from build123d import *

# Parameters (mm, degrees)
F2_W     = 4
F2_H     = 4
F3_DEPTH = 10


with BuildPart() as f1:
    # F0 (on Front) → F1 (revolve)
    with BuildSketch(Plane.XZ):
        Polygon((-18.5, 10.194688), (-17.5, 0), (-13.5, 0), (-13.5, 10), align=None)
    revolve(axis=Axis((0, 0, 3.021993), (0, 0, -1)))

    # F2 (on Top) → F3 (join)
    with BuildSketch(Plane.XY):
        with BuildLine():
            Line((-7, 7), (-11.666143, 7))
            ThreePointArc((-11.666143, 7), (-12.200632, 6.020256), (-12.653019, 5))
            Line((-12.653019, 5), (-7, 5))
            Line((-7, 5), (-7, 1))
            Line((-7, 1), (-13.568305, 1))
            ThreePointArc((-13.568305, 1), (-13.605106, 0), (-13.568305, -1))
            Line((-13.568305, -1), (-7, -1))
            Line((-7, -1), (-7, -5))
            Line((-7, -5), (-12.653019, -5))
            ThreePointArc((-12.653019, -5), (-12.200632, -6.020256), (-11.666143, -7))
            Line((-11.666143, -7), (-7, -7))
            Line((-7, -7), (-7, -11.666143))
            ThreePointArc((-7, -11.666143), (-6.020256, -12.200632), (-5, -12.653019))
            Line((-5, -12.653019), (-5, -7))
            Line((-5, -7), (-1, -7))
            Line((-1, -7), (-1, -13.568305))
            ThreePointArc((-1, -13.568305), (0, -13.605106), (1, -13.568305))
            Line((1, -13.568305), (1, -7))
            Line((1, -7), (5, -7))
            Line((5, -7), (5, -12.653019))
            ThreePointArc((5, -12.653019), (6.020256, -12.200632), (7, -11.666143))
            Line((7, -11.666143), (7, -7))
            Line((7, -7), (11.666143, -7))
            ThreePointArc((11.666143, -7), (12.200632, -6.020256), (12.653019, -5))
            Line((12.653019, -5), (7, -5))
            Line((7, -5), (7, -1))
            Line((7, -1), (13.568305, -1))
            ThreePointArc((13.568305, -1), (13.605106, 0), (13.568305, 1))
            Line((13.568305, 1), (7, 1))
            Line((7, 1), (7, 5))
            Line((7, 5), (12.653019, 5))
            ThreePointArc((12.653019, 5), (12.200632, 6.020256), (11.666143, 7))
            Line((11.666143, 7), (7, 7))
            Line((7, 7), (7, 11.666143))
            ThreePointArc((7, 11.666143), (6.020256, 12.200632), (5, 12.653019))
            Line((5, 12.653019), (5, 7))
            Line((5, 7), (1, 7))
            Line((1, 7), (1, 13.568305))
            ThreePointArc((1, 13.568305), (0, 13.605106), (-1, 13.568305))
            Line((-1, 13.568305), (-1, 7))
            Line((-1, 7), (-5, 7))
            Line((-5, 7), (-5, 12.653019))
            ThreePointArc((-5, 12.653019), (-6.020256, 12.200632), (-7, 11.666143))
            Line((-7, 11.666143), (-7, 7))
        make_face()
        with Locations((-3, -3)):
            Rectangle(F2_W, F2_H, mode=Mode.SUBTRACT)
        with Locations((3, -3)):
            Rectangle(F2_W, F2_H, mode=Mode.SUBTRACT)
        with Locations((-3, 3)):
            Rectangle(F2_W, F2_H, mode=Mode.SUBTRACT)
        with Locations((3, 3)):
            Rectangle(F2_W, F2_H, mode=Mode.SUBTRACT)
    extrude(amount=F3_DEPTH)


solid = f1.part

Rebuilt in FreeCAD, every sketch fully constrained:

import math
import FreeCAD as App
import Part
import Sketcher

doc = App.newDocument("Part")
body = doc.addObject("PartDesign::Body", "Body")

# Sketch on XZ plane
sketch1 = doc.addObject("Sketcher::SketchObject", "Sketch")
body.addObject(sketch1)
sketch1.AttachmentSupport = (doc.XZ_Plane, [""])
sketch1.MapMode = "FlatFace"
sketch1.addGeometry(Part.LineSegment(App.Vector(-18.5, 10.194688, 0), App.Vector(-17.5, 0, 0)), False)
sketch1.addGeometry(Part.LineSegment(App.Vector(-17.5, 0, 0), App.Vector(-13.5, 0, 0)), False)
sketch1.addGeometry(Part.LineSegment(App.Vector(-13.5, 0, 0), App.Vector(-13.5, 10, 0)), False)
sketch1.addGeometry(Part.LineSegment(App.Vector(-13.5, 10, 0), App.Vector(-18.5, 10.194688, 0)), False)
sketch1.addConstraint(Sketcher.Constraint("Coincident", 0, 2, 1, 1))
sketch1.addConstraint(Sketcher.Constraint("Coincident", 1, 2, 2, 1))
sketch1.addConstraint(Sketcher.Constraint("Coincident", 2, 2, 3, 1))
sketch1.addConstraint(Sketcher.Constraint("Coincident", 3, 2, 0, 1))
sketch1.addConstraint(Sketcher.Constraint("Horizontal", 1))
sketch1.addConstraint(Sketcher.Constraint("Vertical", 2))
sketch1.addConstraint(Sketcher.Constraint("PointOnObject", 0, 2, -1))
sketch1.addConstraint(Sketcher.Constraint("DistanceX", 1, 1, 1, 2, 4.0))
sketch1.addConstraint(Sketcher.Constraint("DistanceY", 2, 1, 2, 2, 10.0))
sketch1.addConstraint(Sketcher.Constraint("DistanceX", 3, 2, 2, 2, 5.0))
sketch1.addConstraint(Sketcher.Constraint("DistanceX", 0, 2, -1, 1, 17.5))
sketch1.addConstraint(Sketcher.Constraint("Distance", 3, 5.003789))
revolution = doc.addObject("PartDesign::Revolution", "Revolution")
body.addObject(revolution)
revolution.Profile = sketch1
revolution.ReferenceAxis = (sketch1, ["V_Axis"])
revolution.Angle = 360

# Sketch on XY plane
sketch2 = doc.addObject("Sketcher::SketchObject", "Sketch001")
body.addObject(sketch2)
sketch2.AttachmentSupport = (doc.XY_Plane, [""])
sketch2.MapMode = "FlatFace"
sketch2.addGeometry(Part.LineSegment(App.Vector(-7, 7, 0), App.Vector(-11.666143, 7, 0)), False)
sketch2.addGeometry(Part.ArcOfCircle(Part.Circle(App.Vector(-0.000121, 0.00006, 0), App.Vector(0, 0, 1), 13.604971), math.radians(149.035065), math.radians(158.43797)), False)
sketch2.addGeometry(Part.LineSegment(App.Vector(-12.653019, 5, 0), App.Vector(-7, 5, 0)), False)
sketch2.addGeometry(Part.LineSegment(App.Vector(-7, 5, 0), App.Vector(-7, 1, 0)), False)
sketch2.addGeometry(Part.LineSegment(App.Vector(-7, 1, 0), App.Vector(-13.568305, 1, 0)), False)
sketch2.addGeometry(Part.ArcOfCircle(Part.Circle(App.Vector(-0.000118, 0, 0), App.Vector(0, 0, 1), 13.604988), math.radians(175.784818), math.radians(184.215182)), False)
sketch2.addGeometry(Part.LineSegment(App.Vector(-13.568305, -1, 0), App.Vector(-7, -1, 0)), False)
sketch2.addGeometry(Part.LineSegment(App.Vector(-7, -1, 0), App.Vector(-7, -5, 0)), False)
sketch2.addGeometry(Part.LineSegment(App.Vector(-7, -5, 0), App.Vector(-12.653019, -5, 0)), False)
sketch2.addGeometry(Part.ArcOfCircle(Part.Circle(App.Vector(-0.000121, -0.00006, 0), App.Vector(0, 0, 1), 13.604971), math.radians(-158.43797), math.radians(-149.035065)), False)
sketch2.addGeometry(Part.LineSegment(App.Vector(-11.666143, -7, 0), App.Vector(-7, -7, 0)), False)
sketch2.addGeometry(Part.LineSegment(App.Vector(-7, -7, 0), App.Vector(-7, -11.666143, 0)), False)
sketch2.addGeometry(Part.ArcOfCircle(Part.Circle(App.Vector(-0.00006, -0.000121, 0), App.Vector(0, 0, 1), 13.604971), math.radians(-120.964935), math.radians(-111.56203)), False)
sketch2.addGeometry(Part.LineSegment(App.Vector(-5, -12.653019, 0), App.Vector(-5, -7, 0)), False)
sketch2.addGeometry(Part.LineSegment(App.Vector(-5, -7, 0), App.Vector(-1, -7, 0)), False)
sketch2.addGeometry(Part.LineSegment(App.Vector(-1, -7, 0), App.Vector(-1, -13.568305, 0)), False)
sketch2.addGeometry(Part.ArcOfCircle(Part.Circle(App.Vector(0, -0.000118, 0), App.Vector(0, 0, 1), 13.604988), math.radians(-94.215182), math.radians(-85.784818)), False)
sketch2.addGeometry(Part.LineSegment(App.Vector(1, -13.568305, 0), App.Vector(1, -7, 0)), False)
sketch2.addGeometry(Part.LineSegment(App.Vector(1, -7, 0), App.Vector(5, -7, 0)), False)
sketch2.addGeometry(Part.LineSegment(App.Vector(5, -7, 0), App.Vector(5, -12.653019, 0)), False)
sketch2.addGeometry(Part.ArcOfCircle(Part.Circle(App.Vector(0.00006, -0.000121, 0), App.Vector(0, 0, 1), 13.604971), math.radians(-68.43797), math.radians(-59.035065)), False)
sketch2.addGeometry(Part.LineSegment(App.Vector(7, -11.666143, 0), App.Vector(7, -7, 0)), False)
sketch2.addGeometry(Part.LineSegment(App.Vector(7, -7, 0), App.Vector(11.666143, -7, 0)), False)
sketch2.addGeometry(Part.ArcOfCircle(Part.Circle(App.Vector(0.000121, -0.00006, 0), App.Vector(0, 0, 1), 13.604971), math.radians(-30.964935), math.radians(-21.56203)), False)
sketch2.addGeometry(Part.LineSegment(App.Vector(12.653019, -5, 0), App.Vector(7, -5, 0)), False)
sketch2.addGeometry(Part.LineSegment(App.Vector(7, -5, 0), App.Vector(7, -1, 0)), False)
sketch2.addGeometry(Part.LineSegment(App.Vector(7, -1, 0), App.Vector(13.568305, -1, 0)), False)
sketch2.addGeometry(Part.ArcOfCircle(Part.Circle(App.Vector(0.000118, 0, 0), App.Vector(0, 0, 1), 13.604988), math.radians(-4.215182), math.radians(4.215182)), False)
sketch2.addGeometry(Part.LineSegment(App.Vector(13.568305, 1, 0), App.Vector(7, 1, 0)), False)
sketch2.addGeometry(Part.LineSegment(App.Vector(7, 1, 0), App.Vector(7, 5, 0)), False)
sketch2.addGeometry(Part.LineSegment(App.Vector(7, 5, 0), App.Vector(12.653019, 5, 0)), False)
sketch2.addGeometry(Part.ArcOfCircle(Part.Circle(App.Vector(0.000121, 0.00006, 0), App.Vector(0, 0, 1), 13.604971), math.radians(21.56203), math.radians(30.964935)), False)
sketch2.addGeometry(Part.LineSegment(App.Vector(11.666143, 7, 0), App.Vector(7, 7, 0)), False)
sketch2.addGeometry(Part.LineSegment(App.Vector(7, 7, 0), App.Vector(7, 11.666143, 0)), False)
sketch2.addGeometry(Part.ArcOfCircle(Part.Circle(App.Vector(0.00006, 0.000121, 0), App.Vector(0, 0, 1), 13.604971), math.radians(59.035065), math.radians(68.43797)), False)
sketch2.addGeometry(Part.LineSegment(App.Vector(5, 12.653019, 0), App.Vector(5, 7, 0)), False)
sketch2.addGeometry(Part.LineSegment(App.Vector(5, 7, 0), App.Vector(1, 7, 0)), False)
sketch2.addGeometry(Part.LineSegment(App.Vector(1, 7, 0), App.Vector(1, 13.568305, 0)), False)
sketch2.addGeometry(Part.ArcOfCircle(Part.Circle(App.Vector(0, 0.000118, 0), App.Vector(0, 0, 1), 13.604988), math.radians(85.784818), math.radians(94.215182)), False)
sketch2.addGeometry(Part.LineSegment(App.Vector(-1, 13.568305, 0), App.Vector(-1, 7, 0)), False)
sketch2.addGeometry(Part.LineSegment(App.Vector(-1, 7, 0), App.Vector(-5, 7, 0)), False)
sketch2.addGeometry(Part.LineSegment(App.Vector(-5, 7, 0), App.Vector(-5, 12.653019, 0)), False)
sketch2.addGeometry(Part.ArcOfCircle(Part.Circle(App.Vector(-0.00006, 0.000121, 0), App.Vector(0, 0, 1), 13.604971), math.radians(111.56203), math.radians(120.964935)), False)
sketch2.addGeometry(Part.LineSegment(App.Vector(-7, 11.666143, 0), App.Vector(-7, 7, 0)), False)
sketch2.addGeometry(Part.LineSegment(App.Vector(-1, -5, 0), App.Vector(-5, -5, 0)), False)
sketch2.addGeometry(Part.LineSegment(App.Vector(-5, -5, 0), App.Vector(-5, -1, 0)), False)
sketch2.addGeometry(Part.LineSegment(App.Vector(-5, -1, 0), App.Vector(-1, -1, 0)), False)
sketch2.addGeometry(Part.LineSegment(App.Vector(-1, -1, 0), App.Vector(-1, -5, 0)), False)
sketch2.addGeometry(Part.LineSegment(App.Vector(5, -5, 0), App.Vector(1, -5, 0)), False)
sketch2.addGeometry(Part.LineSegment(App.Vector(1, -5, 0), App.Vector(1, -1, 0)), False)
sketch2.addGeometry(Part.LineSegment(App.Vector(1, -1, 0), App.Vector(5, -1, 0)), False)
sketch2.addGeometry(Part.LineSegment(App.Vector(5, -1, 0), App.Vector(5, -5, 0)), False)
sketch2.addGeometry(Part.LineSegment(App.Vector(-1, 1, 0), App.Vector(-5, 1, 0)), False)
sketch2.addGeometry(Part.LineSegment(App.Vector(-5, 1, 0), App.Vector(-5, 5, 0)), False)
sketch2.addGeometry(Part.LineSegment(App.Vector(-5, 5, 0), App.Vector(-1, 5, 0)), False)
sketch2.addGeometry(Part.LineSegment(App.Vector(-1, 5, 0), App.Vector(-1, 1, 0)), False)
sketch2.addGeometry(Part.LineSegment(App.Vector(5, 1, 0), App.Vector(1, 1, 0)), False)
sketch2.addGeometry(Part.LineSegment(App.Vector(1, 1, 0), App.Vector(1, 5, 0)), False)
sketch2.addGeometry(Part.LineSegment(App.Vector(1, 5, 0), App.Vector(5, 5, 0)), False)
sketch2.addGeometry(Part.LineSegment(App.Vector(5, 5, 0), App.Vector(5, 1, 0)), False)
sketch2.addConstraint(Sketcher.Constraint("Coincident", 0, 2, 1, 1))
sketch2.addConstraint(Sketcher.Constraint("Coincident", 1, 2, 2, 1))
sketch2.addConstraint(Sketcher.Constraint("Coincident", 2, 2, 3, 1))
sketch2.addConstraint(Sketcher.Constraint("Coincident", 3, 2, 4, 1))
sketch2.addConstraint(Sketcher.Constraint("Coincident", 4, 2, 5, 1))
sketch2.addConstraint(Sketcher.Constraint("Coincident", 5, 2, 6, 1))
sketch2.addConstraint(Sketcher.Constraint("Coincident", 6, 2, 7, 1))
sketch2.addConstraint(Sketcher.Constraint("Coincident", 7, 2, 8, 1))
sketch2.addConstraint(Sketcher.Constraint("Coincident", 8, 2, 9, 1))
sketch2.addConstraint(Sketcher.Constraint("Coincident", 9, 2, 10, 1))
sketch2.addConstraint(Sketcher.Constraint("Coincident", 10, 2, 11, 1))
sketch2.addConstraint(Sketcher.Constraint("Coincident", 11, 2, 12, 1))
sketch2.addConstraint(Sketcher.Constraint("Coincident", 12, 2, 13, 1))
sketch2.addConstraint(Sketcher.Constraint("Coincident", 13, 2, 14, 1))
sketch2.addConstraint(Sketcher.Constraint("Coincident", 14, 2, 15, 1))
sketch2.addConstraint(Sketcher.Constraint("Coincident", 15, 2, 16, 1))
sketch2.addConstraint(Sketcher.Constraint("Coincident", 16, 2, 17, 1))
sketch2.addConstraint(Sketcher.Constraint("Coincident", 17, 2, 18, 1))
sketch2.addConstraint(Sketcher.Constraint("Coincident", 18, 2, 19, 1))
sketch2.addConstraint(Sketcher.Constraint("Coincident", 19, 2, 20, 1))
sketch2.addConstraint(Sketcher.Constraint("Coincident", 20, 2, 21, 1))
sketch2.addConstraint(Sketcher.Constraint("Coincident", 21, 2, 22, 1))
sketch2.addConstraint(Sketcher.Constraint("Coincident", 22, 2, 23, 1))
sketch2.addConstraint(Sketcher.Constraint("Coincident", 23, 2, 24, 1))
sketch2.addConstraint(Sketcher.Constraint("Coincident", 24, 2, 25, 1))
sketch2.addConstraint(Sketcher.Constraint("Coincident", 25, 2, 26, 1))
sketch2.addConstraint(Sketcher.Constraint("Coincident", 26, 2, 27, 1))
sketch2.addConstraint(Sketcher.Constraint("Coincident", 27, 2, 28, 1))
sketch2.addConstraint(Sketcher.Constraint("Coincident", 28, 2, 29, 1))
sketch2.addConstraint(Sketcher.Constraint("Coincident", 29, 2, 30, 1))
sketch2.addConstraint(Sketcher.Constraint("Coincident", 30, 2, 31, 1))
sketch2.addConstraint(Sketcher.Constraint("Coincident", 31, 2, 32, 1))
sketch2.addConstraint(Sketcher.Constraint("Coincident", 32, 2, 33, 1))
sketch2.addConstraint(Sketcher.Constraint("Coincident", 33, 2, 34, 1))
sketch2.addConstraint(Sketcher.Constraint("Coincident", 34, 2, 35, 1))
sketch2.addConstraint(Sketcher.Constraint("Coincident", 35, 2, 36, 1))
sketch2.addConstraint(Sketcher.Constraint("Coincident", 36, 2, 37, 1))
sketch2.addConstraint(Sketcher.Constraint("Coincident", 37, 2, 38, 1))
sketch2.addConstraint(Sketcher.Constraint("Coincident", 38, 2, 39, 1))
sketch2.addConstraint(Sketcher.Constraint("Coincident", 39, 2, 40, 1))
sketch2.addConstraint(Sketcher.Constraint("Coincident", 40, 2, 41, 1))
sketch2.addConstraint(Sketcher.Constraint("Coincident", 41, 2, 42, 1))
sketch2.addConstraint(Sketcher.Constraint("Coincident", 42, 2, 43, 1))
sketch2.addConstraint(Sketcher.Constraint("Coincident", 43, 2, 0, 1))
sketch2.addConstraint(Sketcher.Constraint("Coincident", 44, 2, 45, 1))
sketch2.addConstraint(Sketcher.Constraint("Coincident", 45, 2, 46, 1))
sketch2.addConstraint(Sketcher.Constraint("Coincident", 46, 2, 47, 1))
sketch2.addConstraint(Sketcher.Constraint("Coincident", 47, 2, 44, 1))
sketch2.addConstraint(Sketcher.Constraint("Coincident", 48, 2, 49, 1))
sketch2.addConstraint(Sketcher.Constraint("Coincident", 49, 2, 50, 1))
sketch2.addConstraint(Sketcher.Constraint("Coincident", 50, 2, 51, 1))
sketch2.addConstraint(Sketcher.Constraint("Coincident", 51, 2, 48, 1))
sketch2.addConstraint(Sketcher.Constraint("Coincident", 52, 2, 53, 1))
sketch2.addConstraint(Sketcher.Constraint("Coincident", 53, 2, 54, 1))
sketch2.addConstraint(Sketcher.Constraint("Coincident", 54, 2, 55, 1))
sketch2.addConstraint(Sketcher.Constraint("Coincident", 55, 2, 52, 1))
sketch2.addConstraint(Sketcher.Constraint("Coincident", 56, 2, 57, 1))
sketch2.addConstraint(Sketcher.Constraint("Coincident", 57, 2, 58, 1))
sketch2.addConstraint(Sketcher.Constraint("Coincident", 58, 2, 59, 1))
sketch2.addConstraint(Sketcher.Constraint("Coincident", 59, 2, 56, 1))
sketch2.addConstraint(Sketcher.Constraint("Horizontal", 0))
sketch2.addConstraint(Sketcher.Constraint("Horizontal", 2))
sketch2.addConstraint(Sketcher.Constraint("Vertical", 3))
sketch2.addConstraint(Sketcher.Constraint("Horizontal", 4))
sketch2.addConstraint(Sketcher.Constraint("Horizontal", 6))
sketch2.addConstraint(Sketcher.Constraint("Vertical", 7))
sketch2.addConstraint(Sketcher.Constraint("Horizontal", 8))
sketch2.addConstraint(Sketcher.Constraint("Horizontal", 10))
sketch2.addConstraint(Sketcher.Constraint("Vertical", 11))
sketch2.addConstraint(Sketcher.Constraint("Vertical", 13))
sketch2.addConstraint(Sketcher.Constraint("Horizontal", 14))
sketch2.addConstraint(Sketcher.Constraint("Vertical", 15))
sketch2.addConstraint(Sketcher.Constraint("Vertical", 17))
sketch2.addConstraint(Sketcher.Constraint("Horizontal", 18))
sketch2.addConstraint(Sketcher.Constraint("Vertical", 19))
sketch2.addConstraint(Sketcher.Constraint("Vertical", 21))
sketch2.addConstraint(Sketcher.Constraint("Horizontal", 22))
sketch2.addConstraint(Sketcher.Constraint("Horizontal", 24))
sketch2.addConstraint(Sketcher.Constraint("Vertical", 25))
sketch2.addConstraint(Sketcher.Constraint("Horizontal", 26))
sketch2.addConstraint(Sketcher.Constraint("Horizontal", 28))
sketch2.addConstraint(Sketcher.Constraint("Vertical", 29))
sketch2.addConstraint(Sketcher.Constraint("Horizontal", 30))
sketch2.addConstraint(Sketcher.Constraint("Horizontal", 32))
sketch2.addConstraint(Sketcher.Constraint("Vertical", 33))
sketch2.addConstraint(Sketcher.Constraint("Vertical", 35))
sketch2.addConstraint(Sketcher.Constraint("Horizontal", 36))
sketch2.addConstraint(Sketcher.Constraint("Vertical", 37))
sketch2.addConstraint(Sketcher.Constraint("Vertical", 39))
sketch2.addConstraint(Sketcher.Constraint("Horizontal", 40))
sketch2.addConstraint(Sketcher.Constraint("Vertical", 41))
sketch2.addConstraint(Sketcher.Constraint("Vertical", 43))
sketch2.addConstraint(Sketcher.Constraint("Horizontal", 44))
sketch2.addConstraint(Sketcher.Constraint("Vertical", 45))
sketch2.addConstraint(Sketcher.Constraint("Horizontal", 46))
sketch2.addConstraint(Sketcher.Constraint("Vertical", 47))
sketch2.addConstraint(Sketcher.Constraint("Horizontal", 48))
sketch2.addConstraint(Sketcher.Constraint("Vertical", 49))
sketch2.addConstraint(Sketcher.Constraint("Horizontal", 50))
sketch2.addConstraint(Sketcher.Constraint("Vertical", 51))
sketch2.addConstraint(Sketcher.Constraint("Horizontal", 52))
sketch2.addConstraint(Sketcher.Constraint("Vertical", 53))
sketch2.addConstraint(Sketcher.Constraint("Horizontal", 54))
sketch2.addConstraint(Sketcher.Constraint("Vertical", 55))
sketch2.addConstraint(Sketcher.Constraint("Horizontal", 56))
sketch2.addConstraint(Sketcher.Constraint("Vertical", 57))
sketch2.addConstraint(Sketcher.Constraint("Horizontal", 58))
sketch2.addConstraint(Sketcher.Constraint("Vertical", 59))
sketch2.addConstraint(Sketcher.Constraint("Equal", 1, 9))
sketch2.addConstraint(Sketcher.Constraint("Equal", 9, 12))
sketch2.addConstraint(Sketcher.Constraint("Equal", 5, 16))
sketch2.addConstraint(Sketcher.Constraint("Equal", 12, 20))
sketch2.addConstraint(Sketcher.Constraint("Equal", 20, 23))
sketch2.addConstraint(Sketcher.Constraint("Equal", 16, 27))
sketch2.addConstraint(Sketcher.Constraint("Equal", 23, 31))
sketch2.addConstraint(Sketcher.Constraint("Equal", 31, 34))
sketch2.addConstraint(Sketcher.Constraint("Equal", 27, 38))
sketch2.addConstraint(Sketcher.Constraint("Equal", 34, 42))
sketch2.addConstraint(Sketcher.Constraint("Symmetric", 1, 3, 23, 3, -1, 1))
sketch2.addConstraint(Sketcher.Constraint("Symmetric", 5, 3, 27, 3, -1, 1))
sketch2.addConstraint(Sketcher.Constraint("Symmetric", 9, 3, 31, 3, -1, 1))
sketch2.addConstraint(Sketcher.Constraint("Symmetric", 12, 3, 34, 3, -1, 1))
sketch2.addConstraint(Sketcher.Constraint("Symmetric", 16, 3, 38, 3, -1, 1))
sketch2.addConstraint(Sketcher.Constraint("Symmetric", 20, 3, 42, 3, -1, 1))
sketch2.addConstraint(Sketcher.Constraint("Symmetric", 2, 2, 24, 2, -1, 1))
sketch2.addConstraint(Sketcher.Constraint("Symmetric", 6, 2, 28, 2, -1, 1))
sketch2.addConstraint(Sketcher.Constraint("Symmetric", 10, 2, 32, 2, -1, 1))
sketch2.addConstraint(Sketcher.Constraint("Symmetric", 13, 2, 35, 2, -1, 1))
sketch2.addConstraint(Sketcher.Constraint("Symmetric", 17, 2, 39, 2, -1, 1))
sketch2.addConstraint(Sketcher.Constraint("Symmetric", 21, 2, 43, 2, -1, 1))
sketch2.addConstraint(Sketcher.Constraint("Symmetric", 50, 2, 52, 2, -1, 1))
sketch2.addConstraint(Sketcher.Constraint("Symmetric", 48, 2, 54, 2, -1, 1))
sketch2.addConstraint(Sketcher.Constraint("Symmetric", 46, 2, 56, 2, -1, 1))
sketch2.addConstraint(Sketcher.Constraint("Symmetric", 44, 2, 58, 2, -1, 1))
sketch2.addConstraint(Sketcher.Constraint("Symmetric", 12, 3, 20, 3, -2))
sketch2.addConstraint(Sketcher.Constraint("Symmetric", 9, 3, 23, 3, -2))
sketch2.addConstraint(Sketcher.Constraint("Symmetric", 15, 2, 16, 2, -2))
sketch2.addConstraint(Sketcher.Constraint("Symmetric", 13, 2, 18, 2, -2))
sketch2.addConstraint(Sketcher.Constraint("Symmetric", 10, 2, 21, 2, -2))
sketch2.addConstraint(Sketcher.Constraint("Symmetric", 7, 2, 24, 2, -2))
sketch2.addConstraint(Sketcher.Constraint("Symmetric", 5, 2, 26, 2, -2))
sketch2.addConstraint(Sketcher.Constraint("Symmetric", 47, 2, 48, 2, -2))
sketch2.addConstraint(Sketcher.Constraint("Symmetric", 45, 2, 50, 2, -2))
sketch2.addConstraint(Sketcher.Constraint("Horizontal", 10, 2, 13, 2))
sketch2.addConstraint(Sketcher.Constraint("Horizontal", 4, 2, 27, 2))
sketch2.addConstraint(Sketcher.Constraint("Horizontal", 2, 2, 29, 2))
sketch2.addConstraint(Sketcher.Constraint("Horizontal", 37, 2, 38, 2))
sketch2.addConstraint(Sketcher.Constraint("Horizontal", 34, 2, 41, 2))
sketch2.addConstraint(Sketcher.Constraint("Horizontal", 24, 2, 44, 2))
sketch2.addConstraint(Sketcher.Constraint("Horizontal", 26, 2, 45, 2))
sketch2.addConstraint(Sketcher.Constraint("Vertical", 7, 2, 10, 2))
sketch2.addConstraint(Sketcher.Constraint("Vertical", 41, 2, 44, 2))
sketch2.addConstraint(Sketcher.Constraint("Vertical", 39, 2, 46, 2))
sketch2.addConstraint(Sketcher.Constraint("Equal", 58, 3))
sketch2.addConstraint(Sketcher.Constraint("Equal", 32, 11))
sketch2.addConstraint(Sketcher.Constraint("Equal", 30, 13))
sketch2.addConstraint(Sketcher.Constraint("Equal", 28, 15))
sketch2.addConstraint(Sketcher.Constraint("DistanceX", 14, 1, 14, 2, 4.0))
sketch2.addConstraint(Sketcher.Constraint("DistanceY", -1, 1, 0, 2, 7.0))
sketch2.addConstraint(Sketcher.Constraint("DistanceY", -1, 1, 1, 2, 5.0))
sketch2.addConstraint(Sketcher.Constraint("DistanceX", 2, 2, -1, 1, 7.0))
sketch2.addConstraint(Sketcher.Constraint("DistanceX", 12, 2, -1, 1, 5.0))
sketch2.addConstraint(Sketcher.Constraint("Radius", 1, 13.604971))
sketch2.addConstraint(Sketcher.Constraint("Radius", 5, 13.604988))
sketch2.addConstraint(Sketcher.Constraint("DistanceX", 2, 1, 2, 2, 5.653019))
sketch2.addConstraint(Sketcher.Constraint("DistanceX", 0, 2, 0, 1, 4.666143))
sketch2.addConstraint(Sketcher.Constraint("DistanceX", 4, 2, 4, 1, 6.568305))
pad1 = doc.addObject("PartDesign::Pad", "Pad")
body.addObject(pad1)
pad1.Profile = sketch2
pad1.Length = 10

doc.recompute()
